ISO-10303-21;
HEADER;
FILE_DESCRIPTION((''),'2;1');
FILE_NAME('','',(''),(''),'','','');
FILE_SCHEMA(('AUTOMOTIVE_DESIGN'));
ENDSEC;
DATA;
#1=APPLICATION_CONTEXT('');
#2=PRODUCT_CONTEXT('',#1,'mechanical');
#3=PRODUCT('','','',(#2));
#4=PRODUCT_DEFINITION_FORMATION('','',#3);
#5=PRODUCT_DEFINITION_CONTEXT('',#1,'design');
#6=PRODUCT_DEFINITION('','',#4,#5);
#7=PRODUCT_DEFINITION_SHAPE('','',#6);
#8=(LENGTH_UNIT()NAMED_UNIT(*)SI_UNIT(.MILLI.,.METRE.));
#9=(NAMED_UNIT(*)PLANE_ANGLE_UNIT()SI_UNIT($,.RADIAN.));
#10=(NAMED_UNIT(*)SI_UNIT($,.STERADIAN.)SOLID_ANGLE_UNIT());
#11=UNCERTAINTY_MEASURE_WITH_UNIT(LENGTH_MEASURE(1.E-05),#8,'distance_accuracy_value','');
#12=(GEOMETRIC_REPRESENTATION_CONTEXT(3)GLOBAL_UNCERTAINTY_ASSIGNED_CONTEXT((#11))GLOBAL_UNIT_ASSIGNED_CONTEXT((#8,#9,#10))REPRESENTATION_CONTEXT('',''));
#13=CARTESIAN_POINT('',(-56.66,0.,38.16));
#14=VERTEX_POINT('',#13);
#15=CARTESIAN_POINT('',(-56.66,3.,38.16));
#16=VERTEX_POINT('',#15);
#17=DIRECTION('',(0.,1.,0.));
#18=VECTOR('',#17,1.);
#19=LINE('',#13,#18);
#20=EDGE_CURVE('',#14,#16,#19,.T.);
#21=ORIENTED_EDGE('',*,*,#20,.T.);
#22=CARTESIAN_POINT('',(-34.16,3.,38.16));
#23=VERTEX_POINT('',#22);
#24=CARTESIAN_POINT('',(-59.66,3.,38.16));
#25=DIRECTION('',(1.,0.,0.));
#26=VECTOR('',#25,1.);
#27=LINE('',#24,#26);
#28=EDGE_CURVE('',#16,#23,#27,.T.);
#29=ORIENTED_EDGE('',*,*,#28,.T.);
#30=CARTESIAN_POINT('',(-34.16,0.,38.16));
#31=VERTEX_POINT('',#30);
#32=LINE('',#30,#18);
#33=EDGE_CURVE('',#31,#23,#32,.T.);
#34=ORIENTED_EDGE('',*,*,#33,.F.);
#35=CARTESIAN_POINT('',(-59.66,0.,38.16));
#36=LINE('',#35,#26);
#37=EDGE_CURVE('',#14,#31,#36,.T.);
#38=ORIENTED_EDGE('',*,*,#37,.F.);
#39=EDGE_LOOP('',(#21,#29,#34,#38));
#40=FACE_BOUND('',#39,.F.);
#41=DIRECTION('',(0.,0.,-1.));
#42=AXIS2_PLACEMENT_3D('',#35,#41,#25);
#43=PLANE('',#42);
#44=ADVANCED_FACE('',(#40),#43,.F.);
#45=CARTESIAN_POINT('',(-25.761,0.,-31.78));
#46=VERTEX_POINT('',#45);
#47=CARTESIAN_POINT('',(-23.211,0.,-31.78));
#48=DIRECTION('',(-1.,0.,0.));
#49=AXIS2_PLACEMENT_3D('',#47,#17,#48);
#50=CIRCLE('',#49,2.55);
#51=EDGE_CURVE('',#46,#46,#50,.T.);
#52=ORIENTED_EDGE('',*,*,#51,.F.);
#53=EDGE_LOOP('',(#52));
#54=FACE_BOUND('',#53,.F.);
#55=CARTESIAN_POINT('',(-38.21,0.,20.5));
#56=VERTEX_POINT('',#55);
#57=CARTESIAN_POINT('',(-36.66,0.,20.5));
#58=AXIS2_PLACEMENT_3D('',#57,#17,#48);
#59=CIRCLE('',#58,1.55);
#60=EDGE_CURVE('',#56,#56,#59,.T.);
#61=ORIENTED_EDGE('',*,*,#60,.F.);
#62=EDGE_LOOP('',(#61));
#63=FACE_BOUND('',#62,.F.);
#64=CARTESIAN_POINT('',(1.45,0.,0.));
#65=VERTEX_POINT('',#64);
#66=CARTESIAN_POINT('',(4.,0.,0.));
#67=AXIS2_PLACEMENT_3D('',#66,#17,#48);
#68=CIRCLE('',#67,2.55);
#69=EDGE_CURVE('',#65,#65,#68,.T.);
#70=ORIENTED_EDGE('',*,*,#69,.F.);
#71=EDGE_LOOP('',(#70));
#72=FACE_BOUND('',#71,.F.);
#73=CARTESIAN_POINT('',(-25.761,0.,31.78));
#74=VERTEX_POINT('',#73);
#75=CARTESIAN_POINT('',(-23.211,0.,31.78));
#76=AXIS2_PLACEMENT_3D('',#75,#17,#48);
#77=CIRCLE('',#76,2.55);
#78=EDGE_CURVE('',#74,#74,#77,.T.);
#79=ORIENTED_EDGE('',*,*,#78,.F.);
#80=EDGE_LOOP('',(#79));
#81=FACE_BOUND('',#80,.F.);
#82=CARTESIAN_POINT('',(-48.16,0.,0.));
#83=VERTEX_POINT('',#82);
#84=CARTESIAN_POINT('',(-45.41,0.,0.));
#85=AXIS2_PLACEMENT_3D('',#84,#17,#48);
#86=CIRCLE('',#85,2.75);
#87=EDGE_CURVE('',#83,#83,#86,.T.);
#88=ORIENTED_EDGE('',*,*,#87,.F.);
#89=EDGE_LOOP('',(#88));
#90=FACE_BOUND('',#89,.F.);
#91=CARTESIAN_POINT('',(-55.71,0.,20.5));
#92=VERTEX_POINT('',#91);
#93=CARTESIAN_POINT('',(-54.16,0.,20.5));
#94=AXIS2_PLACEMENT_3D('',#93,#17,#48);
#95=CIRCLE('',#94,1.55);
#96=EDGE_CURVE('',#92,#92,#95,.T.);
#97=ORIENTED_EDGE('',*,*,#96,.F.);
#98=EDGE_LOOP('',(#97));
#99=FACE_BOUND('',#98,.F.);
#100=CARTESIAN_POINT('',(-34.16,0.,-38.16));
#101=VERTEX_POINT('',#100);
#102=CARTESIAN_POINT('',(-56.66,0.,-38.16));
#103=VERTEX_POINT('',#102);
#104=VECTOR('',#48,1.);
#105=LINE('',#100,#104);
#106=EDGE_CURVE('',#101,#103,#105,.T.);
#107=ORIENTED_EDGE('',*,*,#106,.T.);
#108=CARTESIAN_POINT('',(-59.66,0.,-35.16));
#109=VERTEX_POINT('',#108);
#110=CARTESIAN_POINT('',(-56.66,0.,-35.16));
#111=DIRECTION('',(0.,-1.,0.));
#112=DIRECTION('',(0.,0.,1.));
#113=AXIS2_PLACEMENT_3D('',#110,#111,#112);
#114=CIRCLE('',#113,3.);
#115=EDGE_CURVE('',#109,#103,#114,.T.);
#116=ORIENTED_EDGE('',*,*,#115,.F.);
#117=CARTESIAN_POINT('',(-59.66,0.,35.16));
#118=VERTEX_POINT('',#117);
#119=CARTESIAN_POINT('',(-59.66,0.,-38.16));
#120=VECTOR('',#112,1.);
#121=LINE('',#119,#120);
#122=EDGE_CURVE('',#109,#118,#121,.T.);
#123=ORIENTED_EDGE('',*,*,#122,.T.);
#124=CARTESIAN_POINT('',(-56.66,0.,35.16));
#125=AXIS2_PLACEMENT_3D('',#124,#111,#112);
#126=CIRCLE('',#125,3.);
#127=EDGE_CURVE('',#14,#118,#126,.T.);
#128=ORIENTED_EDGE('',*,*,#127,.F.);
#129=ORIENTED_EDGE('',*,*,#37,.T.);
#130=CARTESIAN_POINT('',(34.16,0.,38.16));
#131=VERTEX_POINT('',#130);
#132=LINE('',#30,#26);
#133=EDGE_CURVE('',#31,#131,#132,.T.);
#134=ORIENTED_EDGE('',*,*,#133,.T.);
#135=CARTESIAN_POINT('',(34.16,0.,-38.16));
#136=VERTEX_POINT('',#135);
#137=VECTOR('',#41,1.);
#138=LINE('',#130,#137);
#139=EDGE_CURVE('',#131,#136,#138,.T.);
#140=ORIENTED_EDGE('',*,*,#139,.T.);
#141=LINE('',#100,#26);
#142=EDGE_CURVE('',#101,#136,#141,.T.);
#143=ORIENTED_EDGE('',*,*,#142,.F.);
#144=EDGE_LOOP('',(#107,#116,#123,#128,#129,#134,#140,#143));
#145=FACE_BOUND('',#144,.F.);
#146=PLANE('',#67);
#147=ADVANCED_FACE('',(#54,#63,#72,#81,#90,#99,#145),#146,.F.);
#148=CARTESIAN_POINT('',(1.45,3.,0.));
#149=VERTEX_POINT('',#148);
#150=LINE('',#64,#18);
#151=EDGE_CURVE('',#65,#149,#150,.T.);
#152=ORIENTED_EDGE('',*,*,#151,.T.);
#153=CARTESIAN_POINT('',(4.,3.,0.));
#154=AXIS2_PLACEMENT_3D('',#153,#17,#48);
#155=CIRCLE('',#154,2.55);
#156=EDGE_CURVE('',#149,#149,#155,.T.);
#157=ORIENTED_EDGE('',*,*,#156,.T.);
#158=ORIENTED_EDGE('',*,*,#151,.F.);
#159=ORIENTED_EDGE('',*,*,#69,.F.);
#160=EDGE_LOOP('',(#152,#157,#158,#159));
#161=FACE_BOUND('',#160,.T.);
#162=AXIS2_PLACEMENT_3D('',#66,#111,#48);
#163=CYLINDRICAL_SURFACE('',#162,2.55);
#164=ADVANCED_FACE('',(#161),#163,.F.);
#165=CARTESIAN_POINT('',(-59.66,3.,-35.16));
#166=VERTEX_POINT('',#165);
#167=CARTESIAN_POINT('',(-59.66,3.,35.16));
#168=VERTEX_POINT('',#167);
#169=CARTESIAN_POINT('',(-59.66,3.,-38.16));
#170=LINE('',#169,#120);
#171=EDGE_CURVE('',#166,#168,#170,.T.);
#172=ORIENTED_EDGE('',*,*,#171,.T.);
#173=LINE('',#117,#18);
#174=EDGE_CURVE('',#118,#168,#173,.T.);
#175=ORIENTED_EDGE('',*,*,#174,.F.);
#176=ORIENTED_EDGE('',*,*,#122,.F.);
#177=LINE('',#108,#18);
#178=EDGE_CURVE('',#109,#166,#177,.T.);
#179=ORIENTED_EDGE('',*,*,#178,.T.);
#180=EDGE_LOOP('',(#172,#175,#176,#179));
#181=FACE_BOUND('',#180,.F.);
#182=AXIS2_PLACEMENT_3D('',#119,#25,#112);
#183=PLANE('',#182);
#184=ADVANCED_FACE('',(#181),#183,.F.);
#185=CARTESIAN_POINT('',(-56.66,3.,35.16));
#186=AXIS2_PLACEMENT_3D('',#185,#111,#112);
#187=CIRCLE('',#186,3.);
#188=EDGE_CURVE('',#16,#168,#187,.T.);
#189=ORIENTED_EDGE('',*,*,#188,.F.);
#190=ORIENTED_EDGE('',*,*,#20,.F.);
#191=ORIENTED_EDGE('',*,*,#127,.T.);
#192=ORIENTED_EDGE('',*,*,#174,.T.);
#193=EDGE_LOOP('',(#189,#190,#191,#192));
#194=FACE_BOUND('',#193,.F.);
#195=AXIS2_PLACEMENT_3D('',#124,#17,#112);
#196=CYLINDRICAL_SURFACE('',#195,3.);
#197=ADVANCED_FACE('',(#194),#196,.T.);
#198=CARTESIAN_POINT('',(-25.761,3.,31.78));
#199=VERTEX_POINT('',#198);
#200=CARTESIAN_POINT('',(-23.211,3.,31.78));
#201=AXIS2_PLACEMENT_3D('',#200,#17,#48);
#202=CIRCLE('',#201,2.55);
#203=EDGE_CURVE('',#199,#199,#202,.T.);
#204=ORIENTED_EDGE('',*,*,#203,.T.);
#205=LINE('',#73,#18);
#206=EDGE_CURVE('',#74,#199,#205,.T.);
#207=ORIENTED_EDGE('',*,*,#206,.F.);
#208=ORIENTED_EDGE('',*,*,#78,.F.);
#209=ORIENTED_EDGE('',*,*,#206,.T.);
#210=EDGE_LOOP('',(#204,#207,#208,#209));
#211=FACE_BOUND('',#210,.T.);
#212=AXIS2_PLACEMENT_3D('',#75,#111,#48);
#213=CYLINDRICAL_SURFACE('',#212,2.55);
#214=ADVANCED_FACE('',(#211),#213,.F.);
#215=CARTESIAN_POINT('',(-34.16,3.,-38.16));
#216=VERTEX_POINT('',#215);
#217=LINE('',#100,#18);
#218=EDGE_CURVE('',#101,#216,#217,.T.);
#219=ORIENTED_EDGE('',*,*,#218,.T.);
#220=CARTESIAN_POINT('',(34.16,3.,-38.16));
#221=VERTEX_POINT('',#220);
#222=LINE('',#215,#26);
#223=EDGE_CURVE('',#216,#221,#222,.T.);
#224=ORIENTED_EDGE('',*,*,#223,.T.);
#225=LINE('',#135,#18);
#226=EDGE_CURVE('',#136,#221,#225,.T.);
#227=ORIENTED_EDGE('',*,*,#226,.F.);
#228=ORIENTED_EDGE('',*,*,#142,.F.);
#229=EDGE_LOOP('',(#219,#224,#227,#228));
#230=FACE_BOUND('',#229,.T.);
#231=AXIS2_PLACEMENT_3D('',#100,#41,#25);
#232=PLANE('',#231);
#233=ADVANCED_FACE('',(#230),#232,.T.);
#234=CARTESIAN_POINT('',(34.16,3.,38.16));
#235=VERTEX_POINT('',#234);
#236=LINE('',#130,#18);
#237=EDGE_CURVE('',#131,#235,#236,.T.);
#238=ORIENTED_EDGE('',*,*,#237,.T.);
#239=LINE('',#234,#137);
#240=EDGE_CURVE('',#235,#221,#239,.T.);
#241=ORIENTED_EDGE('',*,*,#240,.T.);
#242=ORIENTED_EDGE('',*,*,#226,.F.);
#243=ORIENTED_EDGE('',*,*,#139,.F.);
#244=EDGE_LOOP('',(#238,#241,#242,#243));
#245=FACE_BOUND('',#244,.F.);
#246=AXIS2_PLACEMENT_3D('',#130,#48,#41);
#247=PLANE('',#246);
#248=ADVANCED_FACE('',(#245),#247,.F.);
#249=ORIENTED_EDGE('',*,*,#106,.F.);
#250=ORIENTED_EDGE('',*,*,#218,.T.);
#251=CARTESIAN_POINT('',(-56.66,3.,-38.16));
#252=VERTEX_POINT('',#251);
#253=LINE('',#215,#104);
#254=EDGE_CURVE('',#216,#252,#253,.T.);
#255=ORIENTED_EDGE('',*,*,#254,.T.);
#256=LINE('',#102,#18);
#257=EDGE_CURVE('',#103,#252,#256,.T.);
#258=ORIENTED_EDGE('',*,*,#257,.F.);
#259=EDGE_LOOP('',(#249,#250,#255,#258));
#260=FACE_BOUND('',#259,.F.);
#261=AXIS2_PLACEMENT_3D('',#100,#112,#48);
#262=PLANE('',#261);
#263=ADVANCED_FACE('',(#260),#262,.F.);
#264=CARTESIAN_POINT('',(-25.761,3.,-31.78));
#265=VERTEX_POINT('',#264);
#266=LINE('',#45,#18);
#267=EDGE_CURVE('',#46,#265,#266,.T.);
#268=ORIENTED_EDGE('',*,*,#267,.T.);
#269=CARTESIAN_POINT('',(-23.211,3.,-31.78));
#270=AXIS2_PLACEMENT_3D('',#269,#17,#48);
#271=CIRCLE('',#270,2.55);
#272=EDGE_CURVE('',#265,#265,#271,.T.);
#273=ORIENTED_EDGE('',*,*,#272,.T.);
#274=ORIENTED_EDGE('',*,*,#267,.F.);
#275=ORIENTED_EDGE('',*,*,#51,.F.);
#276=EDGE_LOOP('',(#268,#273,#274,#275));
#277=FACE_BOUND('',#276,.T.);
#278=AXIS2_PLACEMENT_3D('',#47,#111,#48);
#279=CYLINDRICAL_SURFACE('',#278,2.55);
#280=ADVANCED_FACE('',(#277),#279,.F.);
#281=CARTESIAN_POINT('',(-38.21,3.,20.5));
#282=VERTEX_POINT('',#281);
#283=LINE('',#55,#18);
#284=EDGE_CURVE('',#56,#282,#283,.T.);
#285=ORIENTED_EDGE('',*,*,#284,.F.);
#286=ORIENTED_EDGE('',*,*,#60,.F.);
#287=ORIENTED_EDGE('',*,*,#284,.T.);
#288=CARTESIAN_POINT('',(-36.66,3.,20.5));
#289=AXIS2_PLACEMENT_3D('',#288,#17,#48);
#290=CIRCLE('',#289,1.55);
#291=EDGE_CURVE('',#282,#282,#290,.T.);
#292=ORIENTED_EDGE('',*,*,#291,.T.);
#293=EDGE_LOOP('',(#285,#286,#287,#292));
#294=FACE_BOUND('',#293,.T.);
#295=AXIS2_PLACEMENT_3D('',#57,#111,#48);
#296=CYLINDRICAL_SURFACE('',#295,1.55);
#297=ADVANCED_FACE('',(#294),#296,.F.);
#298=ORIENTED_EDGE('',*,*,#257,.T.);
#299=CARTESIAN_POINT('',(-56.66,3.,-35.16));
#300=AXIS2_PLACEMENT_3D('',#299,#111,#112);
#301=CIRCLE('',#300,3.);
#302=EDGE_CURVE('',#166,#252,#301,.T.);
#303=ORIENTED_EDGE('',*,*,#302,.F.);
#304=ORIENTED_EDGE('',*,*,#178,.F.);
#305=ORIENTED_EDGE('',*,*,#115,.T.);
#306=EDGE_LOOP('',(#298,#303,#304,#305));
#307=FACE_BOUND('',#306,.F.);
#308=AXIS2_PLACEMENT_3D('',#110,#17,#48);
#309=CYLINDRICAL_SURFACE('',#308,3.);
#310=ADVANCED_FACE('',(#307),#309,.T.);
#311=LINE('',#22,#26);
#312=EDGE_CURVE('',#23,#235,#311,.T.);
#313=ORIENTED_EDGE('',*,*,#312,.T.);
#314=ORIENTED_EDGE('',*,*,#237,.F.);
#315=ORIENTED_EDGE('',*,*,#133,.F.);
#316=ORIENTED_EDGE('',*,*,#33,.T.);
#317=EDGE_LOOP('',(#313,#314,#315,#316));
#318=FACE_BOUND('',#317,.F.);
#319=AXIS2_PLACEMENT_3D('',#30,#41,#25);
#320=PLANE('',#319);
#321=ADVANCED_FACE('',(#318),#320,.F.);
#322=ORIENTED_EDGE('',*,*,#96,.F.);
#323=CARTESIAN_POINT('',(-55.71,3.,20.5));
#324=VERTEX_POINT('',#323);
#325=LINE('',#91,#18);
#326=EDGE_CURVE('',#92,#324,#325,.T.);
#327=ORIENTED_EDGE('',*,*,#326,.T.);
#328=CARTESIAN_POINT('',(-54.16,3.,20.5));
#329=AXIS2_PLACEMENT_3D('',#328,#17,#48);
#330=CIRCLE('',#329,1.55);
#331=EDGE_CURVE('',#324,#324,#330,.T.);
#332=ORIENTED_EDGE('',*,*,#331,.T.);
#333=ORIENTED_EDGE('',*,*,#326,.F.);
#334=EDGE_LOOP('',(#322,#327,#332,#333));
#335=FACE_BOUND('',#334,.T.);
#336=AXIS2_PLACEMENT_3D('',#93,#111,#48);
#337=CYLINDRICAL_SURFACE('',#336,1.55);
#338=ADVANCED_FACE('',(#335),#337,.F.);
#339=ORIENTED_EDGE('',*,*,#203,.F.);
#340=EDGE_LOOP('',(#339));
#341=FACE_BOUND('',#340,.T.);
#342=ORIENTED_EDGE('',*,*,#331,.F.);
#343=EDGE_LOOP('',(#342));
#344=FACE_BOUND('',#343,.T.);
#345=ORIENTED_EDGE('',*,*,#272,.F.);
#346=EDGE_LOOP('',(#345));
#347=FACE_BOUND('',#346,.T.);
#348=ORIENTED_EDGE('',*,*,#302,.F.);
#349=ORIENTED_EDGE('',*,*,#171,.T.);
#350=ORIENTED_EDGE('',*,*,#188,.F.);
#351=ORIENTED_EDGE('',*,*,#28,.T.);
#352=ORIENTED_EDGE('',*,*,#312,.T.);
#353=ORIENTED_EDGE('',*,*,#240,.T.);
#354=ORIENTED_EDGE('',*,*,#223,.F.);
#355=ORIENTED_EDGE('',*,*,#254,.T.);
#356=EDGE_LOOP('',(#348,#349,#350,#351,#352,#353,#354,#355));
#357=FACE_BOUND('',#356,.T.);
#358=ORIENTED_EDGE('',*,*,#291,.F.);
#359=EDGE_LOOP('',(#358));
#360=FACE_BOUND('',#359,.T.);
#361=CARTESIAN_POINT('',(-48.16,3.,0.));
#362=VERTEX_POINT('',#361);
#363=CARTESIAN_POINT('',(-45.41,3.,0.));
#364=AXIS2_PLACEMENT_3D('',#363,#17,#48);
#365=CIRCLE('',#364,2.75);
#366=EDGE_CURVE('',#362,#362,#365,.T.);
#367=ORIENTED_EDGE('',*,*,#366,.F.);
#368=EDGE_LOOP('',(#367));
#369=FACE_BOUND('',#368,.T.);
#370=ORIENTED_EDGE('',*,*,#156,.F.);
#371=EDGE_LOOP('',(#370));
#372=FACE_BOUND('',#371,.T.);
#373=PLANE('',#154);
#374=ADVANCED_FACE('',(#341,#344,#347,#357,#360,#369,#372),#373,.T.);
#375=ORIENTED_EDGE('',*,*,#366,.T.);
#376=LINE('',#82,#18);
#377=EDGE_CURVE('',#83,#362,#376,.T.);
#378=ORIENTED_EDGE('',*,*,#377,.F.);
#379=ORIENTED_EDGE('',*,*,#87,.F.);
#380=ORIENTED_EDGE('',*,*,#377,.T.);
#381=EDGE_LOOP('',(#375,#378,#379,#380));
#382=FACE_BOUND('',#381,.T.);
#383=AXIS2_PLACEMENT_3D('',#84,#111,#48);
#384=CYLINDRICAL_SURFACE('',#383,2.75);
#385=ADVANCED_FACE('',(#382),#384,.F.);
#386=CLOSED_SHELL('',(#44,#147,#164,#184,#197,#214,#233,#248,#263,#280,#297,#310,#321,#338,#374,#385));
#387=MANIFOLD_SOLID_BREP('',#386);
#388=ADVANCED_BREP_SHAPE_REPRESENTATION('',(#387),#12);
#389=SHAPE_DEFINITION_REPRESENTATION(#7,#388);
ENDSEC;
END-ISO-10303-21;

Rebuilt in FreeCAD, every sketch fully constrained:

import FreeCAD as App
import Part
import Sketcher

V = App.Vector


def edges_at(feature, points):
    """Names of the edges that pass closest to the given points."""
    edges = feature.Shape.Edges
    near = lambda p: min(range(len(edges)), key=lambda i: edges[i].distToShape(Part.Vertex(*p))[0])
    return sorted({f"Edge{near(p) + 1}" for p in points})

doc = App.newDocument("Part")
body = doc.addObject("PartDesign::Body", "Body")

# Sketch on XZ plane
sketch1 = body.newObject("Sketcher::SketchObject", "Sketch")
sketch1.AttachmentSupport = (doc.getObject("XZ_Plane"), [""])
sketch1.MapMode = "FlatFace"
sketch1.addGeometry([
    Part.LineSegment(V(-59.7, 38.2, 0), V(34.2, 38.2, 0)),  # 0
    Part.LineSegment(V(34.2, 38.2, 0), V(34.2, -38.2, 0)),  # 1
    Part.LineSegment(V(34.2, -38.2, 0), V(-59.7, -38.2, 0)),  # 2
    Part.LineSegment(V(-59.7, -38.2, 0), V(-59.7, 38.2, 0)),  # 3
    Part.Circle(V(-23.2, -31.8, 0), V(0, 0, 1), 2.5),  # 4
    Part.Circle(V(4, 0, 0), V(0, 0, 1), 2.5),  # 5
    Part.Circle(V(-45.4, 0, 0), V(0, 0, 1), 2.8),  # 6
    Part.Circle(V(-23.2, 31.8, 0), V(0, 0, 1), 2.5),  # 7
    Part.Circle(V(-36.7, 20.5, 0), V(0, 0, 1), 1.6),  # 8
    Part.Circle(V(-54.2, 20.5, 0), V(0, 0, 1), 1.6),  # 9
], False)
sketch1.addConstraint([
    Sketcher.Constraint("Coincident", 0, 2, 1, 1),
    Sketcher.Constraint("Coincident", 1, 2, 2, 1),
    Sketcher.Constraint("Coincident", 2, 2, 3, 1),
    Sketcher.Constraint("Coincident", 3, 2, 0, 1),
    Sketcher.Constraint("Horizontal", 0),
    Sketcher.Constraint("Vertical", 1),
    Sketcher.Constraint("Horizontal", 2),
    Sketcher.Constraint("Vertical", 3),
    Sketcher.Constraint("Equal", 4, 5),
    Sketcher.Constraint("Equal", 5, 7),
    Sketcher.Constraint("Equal", 8, 9),
    Sketcher.Constraint("Symmetric", 4, 3, 7, 3, -1),
    Sketcher.Constraint("PointOnObject", 5, 3, -1),
    Sketcher.Constraint("PointOnObject", 6, 3, -1),
    Sketcher.Constraint("Horizontal", 8, 3, 9, 3),
    Sketcher.Constraint("Diameter", 4, 5.1),
    Sketcher.Constraint("Diameter", 6, 5.5),
    Sketcher.Constraint("Diameter", 8, 3.1),
    Sketcher.Constraint("DistanceY", 1, 2, 1, 1, 76.32),
    Sketcher.Constraint("DistanceX", 9, 3, 8, 3, 17.5),
    Sketcher.Constraint("DistanceX", 2, 2, 9, 3, 5.5),
    Sketcher.Constraint("DistanceY", -1, 1, 0, 2, 38.16),
    Sketcher.Constraint("DistanceY", 7, 3, 0, 2, 6.38),
    Sketcher.Constraint("DistanceY", 8, 3, 0, 2, 17.66),
    Sketcher.Constraint("DistanceX", 2, 2, 6, 3, 14.25),
    Sketcher.Constraint("DistanceX", -1, 1, 5, 3, 4.0),
    Sketcher.Constraint("DistanceX", 0, 1, 0, 2, 93.82),
    Sketcher.Constraint("DistanceX", 6, 3, -1, 1, 45.41),
    Sketcher.Constraint("DistanceX", 4, 3, -1, 1, 23.211),
])
pad1 = body.newObject("PartDesign::Pad", "Pad")
pad1.Profile = sketch1
pad1.Length = 3
pad1.Reversed = True
doc.recompute()

fillet = body.newObject("PartDesign::Fillet", "Fillet")
fillet.Base = (pad1, edges_at(pad1, [(-59.66, 1.5, 38.16), (-59.66, 1.5, -38.16)]))
fillet.Radius = 3

doc.recompute()
